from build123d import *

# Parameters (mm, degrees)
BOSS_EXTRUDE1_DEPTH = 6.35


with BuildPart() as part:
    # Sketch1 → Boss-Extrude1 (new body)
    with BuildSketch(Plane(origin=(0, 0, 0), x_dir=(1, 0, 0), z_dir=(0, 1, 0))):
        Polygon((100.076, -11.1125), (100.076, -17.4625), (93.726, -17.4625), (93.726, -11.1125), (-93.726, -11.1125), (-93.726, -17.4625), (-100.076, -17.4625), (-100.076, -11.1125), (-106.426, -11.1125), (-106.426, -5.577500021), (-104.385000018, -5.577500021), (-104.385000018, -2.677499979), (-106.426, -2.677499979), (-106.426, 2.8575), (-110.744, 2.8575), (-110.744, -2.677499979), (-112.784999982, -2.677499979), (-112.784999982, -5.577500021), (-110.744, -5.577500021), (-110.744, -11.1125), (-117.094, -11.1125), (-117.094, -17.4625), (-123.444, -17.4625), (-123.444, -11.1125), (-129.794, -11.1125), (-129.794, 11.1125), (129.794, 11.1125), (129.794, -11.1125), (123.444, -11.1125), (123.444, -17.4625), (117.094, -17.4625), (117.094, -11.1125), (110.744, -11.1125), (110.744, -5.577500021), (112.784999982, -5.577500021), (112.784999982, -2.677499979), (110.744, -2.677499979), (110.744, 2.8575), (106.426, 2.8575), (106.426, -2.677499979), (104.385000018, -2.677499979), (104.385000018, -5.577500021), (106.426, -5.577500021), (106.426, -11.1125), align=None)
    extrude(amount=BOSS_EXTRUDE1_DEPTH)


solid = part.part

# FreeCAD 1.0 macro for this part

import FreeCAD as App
import Part
import Sketcher
Q = App.Units.Quantity


def add_polygon(sketch, points):
    """Adds a closed chain of lines whose ends are joined by coincident constraints."""
    first, n = sketch.GeometryCount, len(points)
    for a, b in zip(points, points[1:] + points[:1]):
        sketch.addGeometry(Part.LineSegment(App.Vector(*a, 0), App.Vector(*b, 0)), False)
    for i in range(n):
        sketch.addConstraint(Sketcher.Constraint("Coincident", first + i, 2, first + (i + 1) % n, 1))

doc = App.newDocument("Part")
params = doc.addObject("Spreadsheet::Sheet", "Params")
for row, (alias, value) in enumerate([
    ("sketch1_width", "0.25 in"),
    ("sketch1_width2", "0.17 in"),
    ("sketch1_width3", "10.22 in"),
    ("sketch1_height", "0.875 in"),
    ("pad1_length", "0.25 in"),
], start=1):
    params.set(f"A{row}", alias)
    params.set(f"B{row}", "=" + value)
    params.setAlias(f"B{row}", alias)

body = doc.addObject("PartDesign::Body", "Body")

sketch1 = doc.addObject("Sketcher::SketchObject", "Sketch")
body.addObject(sketch1)
sketch1.AttachmentSupport = (doc.XZ_Plane, [""])
sketch1.MapMode = "FlatFace"
add_polygon(sketch1, [(100.076, 17.4625), (100.076, 11.1125), (106.426, 11.1125), (106.426, 5.5775), (104.385, 5.5775), (104.385, 2.6775), (106.426, 2.6775), (106.426, -2.8575), (110.744, -2.8575), (110.744, 2.6775), (112.785, 2.6775), (112.785, 5.5775), (110.744, 5.5775), (110.744, 11.1125), (117.094, 11.1125), (117.094, 17.4625), (123.444, 17.4625), (123.444, 11.1125), (129.794, 11.1125), (129.794, -11.1125), (-129.794, -11.1125), (-129.794, 11.1125), (-123.444, 11.1125), (-123.444, 17.4625), (-117.094, 17.4625), (-117.094, 11.1125), (-110.744, 11.1125), (-110.744, 5.5775), (-112.785, 5.5775), (-112.785, 2.6775), (-110.744, 2.6775), (-110.744, -2.8575), (-106.426, -2.8575), (-106.426, 2.6775), (-104.385, 2.6775), (-104.385, 5.5775), (-106.426, 5.5775), (-106.426, 11.1125), (-100.076, 11.1125), (-100.076, 17.4625), (-93.726, 17.4625), (-93.726, 11.1125), (93.726, 11.1125), (93.726, 17.4625)])
sketch1.addConstraint([
    Sketcher.Constraint("Vertical", 0),
    Sketcher.Constraint("Horizontal", 1),
    Sketcher.Constraint("Vertical", 2),
    Sketcher.Constraint("Horizontal", 3),
    Sketcher.Constraint("Vertical", 4),
    Sketcher.Constraint("Horizontal", 5),
    Sketcher.Constraint("Vertical", 6),
    Sketcher.Constraint("Horizontal", 7),
    Sketcher.Constraint("Vertical", 8),
    Sketcher.Constraint("Horizontal", 9),
    Sketcher.Constraint("Vertical", 10),
    Sketcher.Constraint("Horizontal", 11),
    Sketcher.Constraint("Vertical", 12),
    Sketcher.Constraint("Horizontal", 13),
    Sketcher.Constraint("Vertical", 14),
    Sketcher.Constraint("Horizontal", 15),
    Sketcher.Constraint("Vertical", 16),
    Sketcher.Constraint("Horizontal", 17),
    Sketcher.Constraint("Vertical", 18),
    Sketcher.Constraint("Horizontal", 19),
    Sketcher.Constraint("Vertical", 20),
    Sketcher.Constraint("Horizontal", 21),
    Sketcher.Constraint("Vertical", 22),
    Sketcher.Constraint("Horizontal", 23),
    Sketcher.Constraint("Vertical", 24),
    Sketcher.Constraint("Horizontal", 25),
    Sketcher.Constraint("Vertical", 26),
    Sketcher.Constraint("Horizontal", 27),
    Sketcher.Constraint("Vertical", 28),
    Sketcher.Constraint("Horizontal", 29),
    Sketcher.Constraint("Vertical", 30),
    Sketcher.Constraint("Horizontal", 31),
    Sketcher.Constraint("Vertical", 32),
    Sketcher.Constraint("Horizontal", 33),
    Sketcher.Constraint("Vertical", 34),
    Sketcher.Constraint("Horizontal", 35),
    Sketcher.Constraint("Vertical", 36),
    Sketcher.Constraint("Horizontal", 37),
    Sketcher.Constraint("Vertical", 38),
    Sketcher.Constraint("Horizontal", 39),
    Sketcher.Constraint("Vertical", 40),
    Sketcher.Constraint("Horizontal", 41),
    Sketcher.Constraint("Vertical", 42),
    Sketcher.Constraint("Horizontal", 43),
    Sketcher.Constraint("Symmetric", 17, 2, 19, 2, -1, 1),
    Sketcher.Constraint("Symmetric", 16, 2, 21, 2, -2),
    Sketcher.Constraint("Symmetric", 14, 2, 23, 2, -2),
    Sketcher.Constraint("Symmetric", 12, 2, 25, 2, -2),
    Sketcher.Constraint("Symmetric", 10, 2, 27, 2, -2),
    Sketcher.Constraint("Symmetric", 8, 2, 29, 2, -2),
    Sketcher.Constraint("Symmetric", 6, 2, 31, 2, -2),
    Sketcher.Constraint("Symmetric", 4, 2, 33, 2, -2),
    Sketcher.Constraint("Symmetric", 2, 2, 35, 2, -2),
    Sketcher.Constraint("Symmetric", 0, 2, 37, 2, -2),
    Sketcher.Constraint("Symmetric", 39, 2, 42, 2, -2),
    Sketcher.Constraint("Horizontal", 5, 2, 8, 2),
    Sketcher.Constraint("Horizontal", 3, 2, 10, 2),
    Sketcher.Constraint("Horizontal", 1, 2, 12, 2),
    Sketcher.Constraint("Horizontal", 13, 2, 16, 2),
    Sketcher.Constraint("Horizontal", 23, 2, 38, 2),
    Sketcher.Constraint("Horizontal", 37, 2, 40, 2),
    Sketcher.Constraint("Vertical", 2, 2, 5, 2),
    Sketcher.Constraint("Vertical", 8, 2, 11, 2),
    Sketcher.Constraint("Equal", 5, 9),
    Sketcher.Constraint("Equal", 1, 13),
    Sketcher.Constraint("Equal", 13, 15),
    Sketcher.Constraint("Equal", 15, 17),
    Sketcher.Constraint("Equal", 37, 39),
    Sketcher.Constraint("Equal", 43, 0),
    Sketcher.Constraint("Equal", 2, 6),
    Sketcher.Constraint("DistanceX", 1, 1, 1, 2, Q("0.25 in")),
    Sketcher.Constraint("DistanceX", 7, 1, 7, 2, Q("0.17 in")),
    Sketcher.Constraint("DistanceX", 19, 2, 19, 1, Q("10.22 in")),
    Sketcher.Constraint("DistanceY", 18, 2, 18, 1, Q("0.875 in")),
    Sketcher.Constraint("DistanceY", 6, 2, 1, 2, Q("0.55 in")),
    Sketcher.Constraint("DistanceX", 3, 2, 3, 1, 2.041),
    Sketcher.Constraint("DistanceY", 2, 2, 2, 1, 5.535),
])
sketch1.setExpression("Constraints[114]", "Params.sketch1_width")
sketch1.setExpression("Constraints[115]", "Params.sketch1_width2")
sketch1.setExpression("Constraints[116]", "Params.sketch1_width3")
sketch1.setExpression("Constraints[117]", "Params.sketch1_height")
pad1 = doc.addObject("PartDesign::Pad", "Pad")
body.addObject(pad1)
pad1.Profile = sketch1
pad1.setExpression("Length", "Params.pad1_length")
pad1.Reversed = True

doc.recompute()
